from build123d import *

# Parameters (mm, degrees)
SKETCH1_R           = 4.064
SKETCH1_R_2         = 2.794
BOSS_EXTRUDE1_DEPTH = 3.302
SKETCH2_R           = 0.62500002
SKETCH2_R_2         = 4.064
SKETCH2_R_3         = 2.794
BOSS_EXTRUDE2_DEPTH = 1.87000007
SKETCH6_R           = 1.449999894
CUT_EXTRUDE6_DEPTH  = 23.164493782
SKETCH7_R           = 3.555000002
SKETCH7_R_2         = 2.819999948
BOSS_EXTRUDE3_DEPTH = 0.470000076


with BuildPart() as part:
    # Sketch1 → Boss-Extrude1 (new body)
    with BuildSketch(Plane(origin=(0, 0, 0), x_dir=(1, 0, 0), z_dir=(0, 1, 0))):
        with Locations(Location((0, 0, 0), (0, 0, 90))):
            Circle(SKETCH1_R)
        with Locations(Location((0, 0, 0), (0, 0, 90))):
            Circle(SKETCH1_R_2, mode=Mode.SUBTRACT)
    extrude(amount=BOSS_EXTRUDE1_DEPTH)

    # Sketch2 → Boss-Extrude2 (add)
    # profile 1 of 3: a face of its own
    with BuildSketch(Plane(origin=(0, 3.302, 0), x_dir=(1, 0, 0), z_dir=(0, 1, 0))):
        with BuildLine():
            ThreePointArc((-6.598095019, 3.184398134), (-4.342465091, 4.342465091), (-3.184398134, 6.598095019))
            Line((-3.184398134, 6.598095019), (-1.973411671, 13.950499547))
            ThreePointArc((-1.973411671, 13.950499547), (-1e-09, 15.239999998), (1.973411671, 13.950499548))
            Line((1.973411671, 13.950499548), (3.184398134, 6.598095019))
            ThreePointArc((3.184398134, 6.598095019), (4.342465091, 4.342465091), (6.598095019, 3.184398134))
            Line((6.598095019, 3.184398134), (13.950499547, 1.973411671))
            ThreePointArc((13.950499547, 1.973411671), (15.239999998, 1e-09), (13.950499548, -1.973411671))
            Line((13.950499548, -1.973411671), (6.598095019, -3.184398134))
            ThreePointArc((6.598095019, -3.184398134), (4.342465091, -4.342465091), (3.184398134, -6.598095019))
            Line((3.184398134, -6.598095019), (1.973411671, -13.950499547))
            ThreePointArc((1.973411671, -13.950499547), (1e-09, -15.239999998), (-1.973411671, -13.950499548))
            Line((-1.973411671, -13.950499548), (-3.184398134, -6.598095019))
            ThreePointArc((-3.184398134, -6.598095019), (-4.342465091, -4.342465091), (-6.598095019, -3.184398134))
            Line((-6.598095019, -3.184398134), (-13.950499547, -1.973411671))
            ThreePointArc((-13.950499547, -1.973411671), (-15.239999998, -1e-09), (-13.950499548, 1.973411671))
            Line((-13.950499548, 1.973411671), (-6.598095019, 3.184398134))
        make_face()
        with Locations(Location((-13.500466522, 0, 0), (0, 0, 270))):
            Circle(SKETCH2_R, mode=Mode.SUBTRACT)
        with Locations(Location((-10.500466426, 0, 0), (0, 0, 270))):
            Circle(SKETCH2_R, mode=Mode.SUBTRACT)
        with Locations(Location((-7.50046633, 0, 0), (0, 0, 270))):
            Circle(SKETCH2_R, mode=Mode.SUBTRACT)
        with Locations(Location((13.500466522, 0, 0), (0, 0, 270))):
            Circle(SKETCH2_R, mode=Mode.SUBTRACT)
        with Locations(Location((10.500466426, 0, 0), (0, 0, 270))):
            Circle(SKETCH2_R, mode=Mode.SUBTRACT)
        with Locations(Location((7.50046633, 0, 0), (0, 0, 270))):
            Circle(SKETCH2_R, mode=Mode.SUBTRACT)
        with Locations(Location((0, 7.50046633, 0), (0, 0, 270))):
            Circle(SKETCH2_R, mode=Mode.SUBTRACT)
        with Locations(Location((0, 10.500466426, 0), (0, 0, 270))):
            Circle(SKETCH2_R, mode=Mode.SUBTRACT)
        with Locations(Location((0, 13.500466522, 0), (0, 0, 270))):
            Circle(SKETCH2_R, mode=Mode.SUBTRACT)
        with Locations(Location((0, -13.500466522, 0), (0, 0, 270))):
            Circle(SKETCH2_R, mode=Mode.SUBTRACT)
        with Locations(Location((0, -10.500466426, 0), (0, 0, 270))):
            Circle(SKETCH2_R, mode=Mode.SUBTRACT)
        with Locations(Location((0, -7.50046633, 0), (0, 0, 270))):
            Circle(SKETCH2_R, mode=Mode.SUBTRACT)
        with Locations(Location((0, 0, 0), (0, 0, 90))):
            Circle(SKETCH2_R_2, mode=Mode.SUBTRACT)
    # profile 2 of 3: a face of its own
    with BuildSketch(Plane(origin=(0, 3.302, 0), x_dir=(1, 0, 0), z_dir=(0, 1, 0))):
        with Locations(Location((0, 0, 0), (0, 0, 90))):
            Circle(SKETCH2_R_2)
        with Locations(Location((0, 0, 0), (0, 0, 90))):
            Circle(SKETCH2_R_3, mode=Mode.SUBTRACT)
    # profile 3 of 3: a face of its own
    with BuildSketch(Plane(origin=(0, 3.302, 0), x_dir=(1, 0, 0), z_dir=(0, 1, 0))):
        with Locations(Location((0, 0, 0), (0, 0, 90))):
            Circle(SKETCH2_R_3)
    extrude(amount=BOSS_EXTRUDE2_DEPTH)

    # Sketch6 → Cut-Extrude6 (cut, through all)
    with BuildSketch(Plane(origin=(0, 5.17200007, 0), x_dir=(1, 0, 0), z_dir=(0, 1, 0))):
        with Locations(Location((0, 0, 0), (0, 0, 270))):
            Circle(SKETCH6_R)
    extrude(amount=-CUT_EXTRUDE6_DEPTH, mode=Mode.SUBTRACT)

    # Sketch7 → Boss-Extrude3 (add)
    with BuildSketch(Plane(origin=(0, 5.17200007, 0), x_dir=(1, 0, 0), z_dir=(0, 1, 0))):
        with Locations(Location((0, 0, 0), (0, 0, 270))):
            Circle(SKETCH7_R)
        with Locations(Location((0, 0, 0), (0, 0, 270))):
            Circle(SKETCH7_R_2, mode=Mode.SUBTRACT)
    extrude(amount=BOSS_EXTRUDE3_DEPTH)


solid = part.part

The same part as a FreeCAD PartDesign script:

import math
import FreeCAD as App
import Part
import Sketcher

V = App.Vector
Q = App.Units.Quantity

doc = App.newDocument("Part")
body = doc.addObject("PartDesign::Body", "Body")

sketch1 = body.newObject("Sketcher::SketchObject", "Sketch")
sketch1.AttachmentSupport = (doc.getObject("XZ_Plane"), [""])
sketch1.MapMode = "FlatFace"
sketch1.addGeometry([
    Part.Circle(V(0, 0, 0), V(0, 0, 1), 4.1),
    Part.Circle(V(0, 0, 0), V(0, 0, 1), 2.8),
], False)
sketch1.addConstraint([
    Sketcher.Constraint("Coincident", 0, 3, -1, 1),
    Sketcher.Constraint("Coincident", 1, 3, -1, 1),
    Sketcher.Constraint("Diameter", 0, Q("0.32 in")),
    Sketcher.Constraint("Diameter", 1, Q("0.22 in")),
])
pad1 = body.newObject("PartDesign::Pad", "Pad")
pad1.Profile = sketch1
pad1.Length = Q("0.13 in")
pad1.Reversed = True

sketch2 = body.newObject("Sketcher::SketchObject", "Sketch001")
sketch2.AttachmentSupport = (doc.getObject("XZ_Plane"), [""])
sketch2.MapMode = "FlatFace"
sketch2.AttachmentOffset = App.Placement(V(0, 0, -0.13 * 25.4), App.Rotation())
sketch2.addGeometry([
    Part.ArcOfCircle(Part.Circle(V(-7.3, -7.3, 0), V(0, 0, 1), 4.1), math.radians(9), math.radians(81)),
    Part.LineSegment(V(-6.6, -3.2, 0), V(-14, -2, 0)),
    Part.ArcOfCircle(Part.Circle(V(-13.1, 0, 0), V(0, 0, 1), 2.2), math.radians(114), math.radians(246)),
    Part.LineSegment(V(-14, 2, 0), V(-6.6, 3.2, 0)),
    Part.ArcOfCircle(Part.Circle(V(-7.3, 7.3, 0), V(0, 0, 1), 4.1), math.radians(-81), math.radians(-9)),
    Part.LineSegment(V(-3.2, 6.6, 0), V(-2, 14, 0)),
    Part.ArcOfCircle(Part.Circle(V(0, 13.1, 0), V(0, 0, 1), 2.2), math.radians(24), math.radians(156)),
    Part.LineSegment(V(2, 14, 0), V(3.2, 6.6, 0)),
    Part.ArcOfCircle(Part.Circle(V(7.3, 7.3, 0), V(0, 0, 1), 4.1), math.radians(-171), math.radians(-99)),
    Part.LineSegment(V(6.6, 3.2, 0), V(14, 2, 0)),
    Part.ArcOfCircle(Part.Circle(V(13.1, 0, 0), V(0, 0, 1), 2.2), math.radians(-66), math.radians(66)),
    Part.LineSegment(V(14, -2, 0), V(6.6, -3.2, 0)),
    Part.ArcOfCircle(Part.Circle(V(7.3, -7.3, 0), V(0, 0, 1), 4.1), math.radians(99), math.radians(171)),
    Part.LineSegment(V(3.2, -6.6, 0), V(2, -14, 0)),
    Part.ArcOfCircle(Part.Circle(V(0, -13.1, 0), V(0, 0, 1), 2.2), math.radians(-156), math.radians(-24)),
    Part.LineSegment(V(-2, -14, 0), V(-3.2, -6.6, 0)),
    Part.Circle(V(0, 13.5, 0), V(0, 0, 1), 0.6),
    Part.Circle(V(0, 10.5, 0), V(0, 0, 1), 0.6),
    Part.Circle(V(0, 7.5, 0), V(0, 0, 1), 0.6),
    Part.Circle(V(13.5, 0, 0), V(0, 0, 1), 0.6),
    Part.Circle(V(10.5, 0, 0), V(0, 0, 1), 0.6),
    Part.Circle(V(7.5, 0, 0), V(0, 0, 1), 0.6),
    Part.Circle(V(-7.5, 0, 0), V(0, 0, 1), 0.6),
    Part.Circle(V(-10.5, 0, 0), V(0, 0, 1), 0.6),
    Part.Circle(V(-13.5, 0, 0), V(0, 0, 1), 0.6),
    Part.Circle(V(0, -7.5, 0), V(0, 0, 1), 0.6),
    Part.Circle(V(0, -10.5, 0), V(0, 0, 1), 0.6),
    Part.Circle(V(0, -13.5, 0), V(0, 0, 1), 0.6),
], False)
sketch2.addConstraint([
    Sketcher.Constraint("Tangent", 0, 2, 1, 1),
    Sketcher.Constraint("Coincident", 1, 2, 2, 2),
    Sketcher.Constraint("Coincident", 2, 1, 3, 1),
    Sketcher.Constraint("Tangent", 3, 2, 4, 1),
    Sketcher.Constraint("Tangent", 4, 2, 5, 1),
    Sketcher.Constraint("Coincident", 5, 2, 6, 2),
    Sketcher.Constraint("Coincident", 6, 1, 7, 1),
    Sketcher.Constraint("Tangent", 7, 2, 8, 1),
    Sketcher.Constraint("Tangent", 8, 2, 9, 1),
    Sketcher.Constraint("Coincident", 9, 2, 10, 2),
    Sketcher.Constraint("Coincident", 10, 1, 11, 1),
    Sketcher.Constraint("Tangent", 11, 2, 12, 1),
    Sketcher.Constraint("Tangent", 12, 2, 13, 1),
    Sketcher.Constraint("Coincident", 13, 2, 14, 2),
    Sketcher.Constraint("Coincident", 14, 1, 15, 1),
    Sketcher.Constraint("Tangent", 15, 2, 0, 1),
    Sketcher.Constraint("Equal", 0, 4),
    Sketcher.Constraint("Equal", 2, 6),
    Sketcher.Constraint("Equal", 4, 8),
    Sketcher.Constraint("Equal", 6, 10),
    Sketcher.Constraint("Equal", 8, 12),
    Sketcher.Constraint("Equal", 10, 14),
    Sketcher.Constraint("Equal", 16, 17),
    Sketcher.Constraint("Equal", 17, 18),
    Sketcher.Constraint("Equal", 18, 19),
    Sketcher.Constraint("Equal", 19, 20),
    Sketcher.Constraint("Equal", 20, 21),
    Sketcher.Constraint("Equal", 21, 22),
    Sketcher.Constraint("Equal", 22, 23),
    Sketcher.Constraint("Equal", 23, 24),
    Sketcher.Constraint("Equal", 24, 25),
    Sketcher.Constraint("Equal", 25, 26),
    Sketcher.Constraint("Equal", 26, 27),
    Sketcher.Constraint("Symmetric", 0, 3, 8, 3, -1, 1),
    Sketcher.Constraint("Symmetric", 2, 3, 10, 3, -1, 1),
    Sketcher.Constraint("Symmetric", 4, 3, 12, 3, -1, 1),
    Sketcher.Constraint("Symmetric", 6, 3, 14, 3, -1, 1),
    Sketcher.Constraint("Symmetric", 21, 3, 22, 3, -1, 1),
    Sketcher.Constraint("Symmetric", 20, 3, 23, 3, -1, 1),
    Sketcher.Constraint("Symmetric", 19, 3, 24, 3, -1, 1),
    Sketcher.Constraint("Symmetric", 18, 3, 25, 3, -1, 1),
    Sketcher.Constraint("Symmetric", 17, 3, 26, 3, -1, 1),
    Sketcher.Constraint("Symmetric", 16, 3, 27, 3, -1, 1),
    Sketcher.Constraint("Symmetric", 4, 3, 8, 3, -2),
    Sketcher.Constraint("Symmetric", 5, 2, 6, 1, -2),
    Sketcher.Constraint("Symmetric", 2, 1, 9, 2, -2),
    Sketcher.Constraint("PointOnObject", 16, 3, -2),
    Sketcher.Constraint("PointOnObject", 17, 3, -2),
    Sketcher.Constraint("PointOnObject", 18, 3, -2),
    Sketcher.Constraint("PointOnObject", 19, 3, -1),
    Sketcher.Constraint("PointOnObject", 20, 3, -1),
    Sketcher.Constraint("PointOnObject", 21, 3, -1),
    Sketcher.Constraint("Perpendicular", 1, 5),
    Sketcher.Constraint("Perpendicular", 3, 7),
    Sketcher.Constraint("Perpendicular", 7, 11),
    Sketcher.Constraint("Perpendicular", 9, 13),
    Sketcher.Constraint("Perpendicular", 11, 15),
    Sketcher.Constraint("Equal", 3, 5),
    Sketcher.Constraint("Diameter", 16, 1.25),
    Sketcher.Constraint("Radius", 0, 4.141885),
    Sketcher.Constraint("Radius", 2, 2.154774),
    Sketcher.Constraint("DistanceY", 0, 2, -1, 1, 3.184398),
    Sketcher.Constraint("DistanceX", 1, 2, -1, 1, 13.9505),
    Sketcher.Constraint("DistanceX", 4, 2, -1, 1, 3.184398),
    Sketcher.Constraint("DistanceY", 17, 3, 16, 3, 3.0),
    Sketcher.Constraint("DistanceY", 18, 3, 17, 3, 3.0),
    Sketcher.Constraint("DistanceX", 20, 3, 19, 3, 3.0),
    Sketcher.Constraint("DistanceX", 21, 3, 20, 3, 3.0),
    Sketcher.Constraint("DistanceX", 0, 3, -1, 1, 7.27122),
    Sketcher.Constraint("DistanceY", 6, 3, 16, 3, 0.415241),
    Sketcher.Constraint("DistanceX", 10, 3, 19, 3, 0.415241),
])
pad2 = body.newObject("PartDesign::Pad", "Pad001")
pad2.Profile = sketch2
pad2.Length = 1.87
pad2.Reversed = True

sketch3 = body.newObject("Sketcher::SketchObject", "Sketch002")
sketch3.AttachmentSupport = (doc.getObject("XZ_Plane"), [""])
sketch3.MapMode = "FlatFace"
sketch3.AttachmentOffset = App.Placement(V(0, 0, -5.172), App.Rotation())
sketch3.addGeometry(Part.Circle(V(0, 0, 0), V(0, 0, 1), 1.4), False)
sketch3.addConstraint([
    Sketcher.Constraint("Coincident", 0, 3, -1, 1),
    Sketcher.Constraint("Diameter", 0, 2.9),
])
pocket1 = body.newObject("PartDesign::Pocket", "Pocket")
pocket1.Profile = sketch3
pocket1.Type = "ThroughAll"
pocket1.Reversed = True

sketch4 = body.newObject("Sketcher::SketchObject", "Sketch003")
sketch4.AttachmentSupport = (doc.getObject("XZ_Plane"), [""])
sketch4.MapMode = "FlatFace"
sketch4.AttachmentOffset = App.Placement(V(0, 0, -5.172), App.Rotation())
sketch4.addGeometry([
    Part.Circle(V(0, 0, 0), V(0, 0, 1), 3.6),
    Part.Circle(V(0, 0, 0), V(0, 0, 1), 2.8),
], False)
sketch4.addConstraint([
    Sketcher.Constraint("Coincident", 0, 3, -1, 1),
    Sketcher.Constraint("Coincident", 1, 3, -1, 1),
    Sketcher.Constraint("Diameter", 0, 7.11),
    Sketcher.Constraint("Diameter", 1, 5.64),
])
pad3 = body.newObject("PartDesign::Pad", "Pad002")
pad3.Profile = sketch4
pad3.Length = 0.47
pad3.Reversed = True

doc.recompute()
